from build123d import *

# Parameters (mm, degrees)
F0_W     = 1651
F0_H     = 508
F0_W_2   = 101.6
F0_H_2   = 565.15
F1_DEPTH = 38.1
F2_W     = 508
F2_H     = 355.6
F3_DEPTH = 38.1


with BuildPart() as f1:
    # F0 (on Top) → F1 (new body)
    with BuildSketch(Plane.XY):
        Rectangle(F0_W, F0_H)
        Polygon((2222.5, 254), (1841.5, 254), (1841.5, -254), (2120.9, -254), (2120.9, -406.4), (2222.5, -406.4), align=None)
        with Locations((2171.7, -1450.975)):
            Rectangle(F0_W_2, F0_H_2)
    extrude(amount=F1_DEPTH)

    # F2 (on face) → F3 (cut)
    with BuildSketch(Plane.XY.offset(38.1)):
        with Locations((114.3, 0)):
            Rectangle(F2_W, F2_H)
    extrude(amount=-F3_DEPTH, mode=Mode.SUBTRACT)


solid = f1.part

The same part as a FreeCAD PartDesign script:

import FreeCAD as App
import Part
import Sketcher

V = App.Vector
Q = App.Units.Quantity

doc = App.newDocument("Part")
body = doc.addObject("PartDesign::Body", "Body")
body.AllowCompound = True

# Sketch on XY plane
sketch1 = body.newObject("Sketcher::SketchObject", "Sketch")
sketch1.AttachmentSupport = (doc.getObject("XY_Plane"), [""])
sketch1.MapMode = "FlatFace"
sketch1.addGeometry([
    Part.LineSegment(V(-825.5, 254, 0), V(-825.5, -254, 0)),  # 0
    Part.LineSegment(V(-825.5, -254, 0), V(825.5, -254, 0)),  # 1
    Part.LineSegment(V(825.5, -254, 0), V(825.5, 254, 0)),  # 2
    Part.LineSegment(V(825.5, 254, 0), V(-825.5, 254, 0)),  # 3
    Part.LineSegment(V(2222.5, 254, 0), V(1841.5, 254, 0)),  # 4
    Part.LineSegment(V(1841.5, 254, 0), V(1841.5, -254, 0)),  # 5
    Part.LineSegment(V(1841.5, -254, 0), V(2120.9, -254, 0)),  # 6
    Part.LineSegment(V(2120.9, -254, 0), V(2120.9, -406.4, 0)),  # 7
    Part.LineSegment(V(2120.9, -406.4, 0), V(2222.5, -406.4, 0)),  # 8
    Part.LineSegment(V(2222.5, -406.4, 0), V(2222.5, 254, 0)),  # 9
    Part.LineSegment(V(2120.9, -1168.4, 0), V(2120.9, -1733.55, 0)),  # 10
    Part.LineSegment(V(2120.9, -1733.55, 0), V(2222.5, -1733.55, 0)),  # 11
    Part.LineSegment(V(2222.5, -1733.55, 0), V(2222.5, -1168.4, 0)),  # 12
    Part.LineSegment(V(2222.5, -1168.4, 0), V(2120.9, -1168.4, 0)),  # 13
], False)
sketch1.addConstraint([
    Sketcher.Constraint("Coincident", 0, 2, 1, 1),
    Sketcher.Constraint("Coincident", 1, 2, 2, 1),
    Sketcher.Constraint("Coincident", 2, 2, 3, 1),
    Sketcher.Constraint("Coincident", 3, 2, 0, 1),
    Sketcher.Constraint("Coincident", 4, 2, 5, 1),
    Sketcher.Constraint("Coincident", 5, 2, 6, 1),
    Sketcher.Constraint("Coincident", 6, 2, 7, 1),
    Sketcher.Constraint("Coincident", 7, 2, 8, 1),
    Sketcher.Constraint("Coincident", 8, 2, 9, 1),
    Sketcher.Constraint("Coincident", 9, 2, 4, 1),
    Sketcher.Constraint("Coincident", 10, 2, 11, 1),
    Sketcher.Constraint("Coincident", 11, 2, 12, 1),
    Sketcher.Constraint("Coincident", 12, 2, 13, 1),
    Sketcher.Constraint("Coincident", 13, 2, 10, 1),
    Sketcher.Constraint("Vertical", 0),
    Sketcher.Constraint("Horizontal", 1),
    Sketcher.Constraint("Vertical", 2),
    Sketcher.Constraint("Horizontal", 3),
    Sketcher.Constraint("Horizontal", 4),
    Sketcher.Constraint("Vertical", 5),
    Sketcher.Constraint("Horizontal", 6),
    Sketcher.Constraint("Vertical", 7),
    Sketcher.Constraint("Horizontal", 8),
    Sketcher.Constraint("Vertical", 9),
    Sketcher.Constraint("Vertical", 10),
    Sketcher.Constraint("Horizontal", 11),
    Sketcher.Constraint("Vertical", 12),
    Sketcher.Constraint("Horizontal", 13),
    Sketcher.Constraint("Symmetric", 0, 2, 2, 2, -1, 1),
    Sketcher.Constraint("Horizontal", 3, 2, 4, 2),
    Sketcher.Constraint("Horizontal", 1, 2, 5, 2),
    Sketcher.Constraint("Vertical", 7, 2, 10, 2),
    Sketcher.Constraint("Vertical", 9, 2, 11, 2),
    Sketcher.Constraint("DistanceX", 1, 1, 1, 2, Q("65 in")),
    Sketcher.Constraint("DistanceX", 4, 2, 4, 1, Q("15 in")),
    Sketcher.Constraint("DistanceX", 6, 1, 6, 2, Q("11 in")),
    Sketcher.Constraint("DistanceY", 0, 2, 0, 1, Q("20 in")),
    Sketcher.Constraint("DistanceY", 7, 2, 7, 1, Q("6 in")),
    Sketcher.Constraint("DistanceY", 12, 2, -1, 1, Q("46 in")),
    Sketcher.Constraint("DistanceX", 2, 2, 4, 2, Q("40 in")),
    Sketcher.Constraint("DistanceY", 10, 2, 10, 1, Q("22.25 in")),
])
pad1 = body.newObject("PartDesign::Pad", "Pad")
pad1.Profile = sketch1
pad1.Length = Q("1.5 in")

# Sketch on XY plane
sketch2 = body.newObject("Sketcher::SketchObject", "Sketch001")
sketch2.AttachmentSupport = (doc.getObject("XY_Plane"), [""])
sketch2.MapMode = "FlatFace"
sketch2.AttachmentOffset = App.Placement(V(0, 0, 1.5 * 25.4), App.Rotation())
sketch2.addGeometry([
    Part.LineSegment(V(-139.7, 177.8, 0), V(-139.7, -177.8, 0)),
    Part.LineSegment(V(-139.7, -177.8, 0), V(368.3, -177.8, 0)),
    Part.LineSegment(V(368.3, -177.8, 0), V(368.3, 177.8, 0)),
    Part.LineSegment(V(368.3, 177.8, 0), V(-139.7, 177.8, 0)),
], False)
sketch2.addConstraint([
    Sketcher.Constraint("Coincident", 0, 2, 1, 1),
    Sketcher.Constraint("Coincident", 1, 2, 2, 1),
    Sketcher.Constraint("Coincident", 2, 2, 3, 1),
    Sketcher.Constraint("Coincident", 3, 2, 0, 1),
    Sketcher.Constraint("Vertical", 0),
    Sketcher.Constraint("Horizontal", 1),
    Sketcher.Constraint("Vertical", 2),
    Sketcher.Constraint("Horizontal", 3),
    Sketcher.Constraint("DistanceX", 1, 1, 1, 2, Q("20 in")),
    Sketcher.Constraint("DistanceY", 0, 2, 0, 1, Q("14 in")),
    Sketcher.Constraint("DistanceY", 0, 2, -1, 1, Q("7 in")),
    Sketcher.Constraint("DistanceX", 0, 2, -1, 1, Q("5.5 in")),
])
pocket1 = body.newObject("PartDesign::Pocket", "Pocket")
pocket1.Profile = sketch2
pocket1.Length = Q("1.5 in")

doc.recompute()
